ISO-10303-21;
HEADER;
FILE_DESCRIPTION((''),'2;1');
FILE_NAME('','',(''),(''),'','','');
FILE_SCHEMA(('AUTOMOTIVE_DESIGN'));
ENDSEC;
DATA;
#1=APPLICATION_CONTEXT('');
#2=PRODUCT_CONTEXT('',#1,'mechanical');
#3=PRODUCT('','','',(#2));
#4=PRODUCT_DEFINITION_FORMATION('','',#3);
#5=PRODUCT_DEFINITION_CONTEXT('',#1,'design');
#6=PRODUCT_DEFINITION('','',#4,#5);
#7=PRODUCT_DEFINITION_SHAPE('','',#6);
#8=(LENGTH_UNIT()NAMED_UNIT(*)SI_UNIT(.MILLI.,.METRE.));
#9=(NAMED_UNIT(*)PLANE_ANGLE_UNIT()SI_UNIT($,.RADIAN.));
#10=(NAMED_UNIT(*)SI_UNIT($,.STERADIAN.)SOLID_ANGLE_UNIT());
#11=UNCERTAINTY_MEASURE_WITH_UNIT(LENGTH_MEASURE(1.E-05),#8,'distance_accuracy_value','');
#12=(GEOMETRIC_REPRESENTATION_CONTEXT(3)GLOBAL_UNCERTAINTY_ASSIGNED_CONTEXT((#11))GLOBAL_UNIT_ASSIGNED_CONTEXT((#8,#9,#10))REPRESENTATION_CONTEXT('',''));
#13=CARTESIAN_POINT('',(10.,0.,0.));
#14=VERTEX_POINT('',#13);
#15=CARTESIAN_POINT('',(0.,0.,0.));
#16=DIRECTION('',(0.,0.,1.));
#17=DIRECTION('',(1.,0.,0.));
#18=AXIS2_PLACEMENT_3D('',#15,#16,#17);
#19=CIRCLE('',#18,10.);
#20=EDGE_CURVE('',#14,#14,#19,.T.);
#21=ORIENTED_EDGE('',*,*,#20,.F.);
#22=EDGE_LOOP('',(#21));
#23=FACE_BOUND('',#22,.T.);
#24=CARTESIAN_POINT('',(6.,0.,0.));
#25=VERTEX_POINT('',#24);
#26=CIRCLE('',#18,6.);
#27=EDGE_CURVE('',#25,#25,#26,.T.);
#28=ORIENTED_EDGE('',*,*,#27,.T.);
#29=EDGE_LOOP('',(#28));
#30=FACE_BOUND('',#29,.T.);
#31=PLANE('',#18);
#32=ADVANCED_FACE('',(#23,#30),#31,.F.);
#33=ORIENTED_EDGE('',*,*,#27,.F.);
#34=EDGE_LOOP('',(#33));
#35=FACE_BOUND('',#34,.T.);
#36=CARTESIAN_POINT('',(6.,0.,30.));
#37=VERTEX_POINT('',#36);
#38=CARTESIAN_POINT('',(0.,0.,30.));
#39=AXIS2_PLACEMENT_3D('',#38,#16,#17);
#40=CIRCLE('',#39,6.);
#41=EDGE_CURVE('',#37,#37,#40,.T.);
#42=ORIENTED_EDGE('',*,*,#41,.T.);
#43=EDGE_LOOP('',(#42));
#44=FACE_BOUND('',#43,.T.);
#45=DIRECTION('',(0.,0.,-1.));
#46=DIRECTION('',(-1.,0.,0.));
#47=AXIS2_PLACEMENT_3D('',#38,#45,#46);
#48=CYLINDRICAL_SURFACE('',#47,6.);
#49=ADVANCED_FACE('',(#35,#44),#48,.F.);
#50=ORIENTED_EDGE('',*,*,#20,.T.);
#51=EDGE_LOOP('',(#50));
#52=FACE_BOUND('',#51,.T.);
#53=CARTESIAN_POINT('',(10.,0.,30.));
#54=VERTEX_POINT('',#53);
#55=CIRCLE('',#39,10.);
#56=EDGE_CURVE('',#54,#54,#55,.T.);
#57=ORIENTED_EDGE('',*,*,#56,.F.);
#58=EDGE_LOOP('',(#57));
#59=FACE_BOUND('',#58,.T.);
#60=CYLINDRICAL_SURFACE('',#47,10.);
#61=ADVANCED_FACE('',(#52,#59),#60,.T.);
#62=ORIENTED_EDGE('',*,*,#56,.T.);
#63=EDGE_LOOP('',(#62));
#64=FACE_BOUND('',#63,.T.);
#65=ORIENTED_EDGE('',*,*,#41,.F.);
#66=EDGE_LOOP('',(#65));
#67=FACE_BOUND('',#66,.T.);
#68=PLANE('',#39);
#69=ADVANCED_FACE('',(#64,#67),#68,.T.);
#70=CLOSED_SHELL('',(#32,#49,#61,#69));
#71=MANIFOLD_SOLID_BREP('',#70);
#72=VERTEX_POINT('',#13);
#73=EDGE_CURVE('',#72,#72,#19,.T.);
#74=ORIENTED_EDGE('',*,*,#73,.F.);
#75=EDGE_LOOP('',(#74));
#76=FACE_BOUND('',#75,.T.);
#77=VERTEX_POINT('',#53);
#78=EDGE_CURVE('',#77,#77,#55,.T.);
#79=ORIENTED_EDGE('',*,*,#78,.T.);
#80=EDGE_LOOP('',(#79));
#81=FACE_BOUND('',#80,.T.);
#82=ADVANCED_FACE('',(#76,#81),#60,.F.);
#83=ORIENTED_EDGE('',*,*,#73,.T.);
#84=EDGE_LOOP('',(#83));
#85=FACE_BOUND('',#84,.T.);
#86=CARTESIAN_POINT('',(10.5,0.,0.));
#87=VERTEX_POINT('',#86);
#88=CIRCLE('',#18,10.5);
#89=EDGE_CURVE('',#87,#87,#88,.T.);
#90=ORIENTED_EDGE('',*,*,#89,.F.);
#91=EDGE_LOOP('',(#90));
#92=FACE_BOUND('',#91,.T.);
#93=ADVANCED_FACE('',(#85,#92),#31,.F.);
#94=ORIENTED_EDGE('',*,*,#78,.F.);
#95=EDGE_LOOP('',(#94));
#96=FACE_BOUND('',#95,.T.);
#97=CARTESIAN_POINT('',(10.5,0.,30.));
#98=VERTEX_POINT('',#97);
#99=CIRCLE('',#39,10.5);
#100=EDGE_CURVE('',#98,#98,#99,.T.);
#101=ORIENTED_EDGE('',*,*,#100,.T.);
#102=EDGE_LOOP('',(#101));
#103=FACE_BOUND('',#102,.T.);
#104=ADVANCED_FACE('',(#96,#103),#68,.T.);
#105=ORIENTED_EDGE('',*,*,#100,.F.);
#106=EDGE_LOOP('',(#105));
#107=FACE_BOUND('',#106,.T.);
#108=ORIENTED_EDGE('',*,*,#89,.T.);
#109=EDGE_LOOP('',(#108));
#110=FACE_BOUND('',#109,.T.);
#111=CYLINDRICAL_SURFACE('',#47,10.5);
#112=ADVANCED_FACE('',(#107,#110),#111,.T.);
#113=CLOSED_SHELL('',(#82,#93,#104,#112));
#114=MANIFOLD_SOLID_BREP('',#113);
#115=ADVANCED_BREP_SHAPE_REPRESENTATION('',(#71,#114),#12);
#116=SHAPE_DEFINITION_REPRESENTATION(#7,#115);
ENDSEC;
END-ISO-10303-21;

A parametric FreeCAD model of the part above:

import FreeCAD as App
import Part
import Sketcher

V = App.Vector
Q = App.Units.Quantity

doc = App.newDocument("Part")
body = doc.addObject("PartDesign::Body", "Body")

sketch1 = body.newObject("Sketcher::SketchObject", "Sketch")
sketch1.AttachmentSupport = (doc.getObject("XY_Plane"), [""])
sketch1.MapMode = "FlatFace"
sketch1.addGeometry(Part.Circle(V(0, 0, 0), V(0, 0, 1), 10), False)
sketch1.addGeometry(Part.Circle(V(0, 0, 0), V(0, 0, 1), 6), False)
sketch1.addConstraint(Sketcher.Constraint("Coincident", 0, 3, -1, 1))
sketch1.addConstraint(Sketcher.Constraint("Coincident", 1, 3, -1, 1))
sketch1.addConstraint(Sketcher.Constraint("Diameter", 0, Q("20 mm")))
sketch1.addConstraint(Sketcher.Constraint("Diameter", 1, Q("12 mm")))
pad1 = body.newObject("PartDesign::Pad", "Pad")
pad1.Profile = sketch1
pad1.Length = 30
body2 = doc.addObject("PartDesign::Body", "Body001")

sketch2 = body2.newObject("Sketcher::SketchObject", "Sketch001")
sketch2.AttachmentSupport = (doc.getObject("XY_Plane001"), [""])
sketch2.MapMode = "FlatFace"
sketch2.addGeometry(Part.Circle(V(0, 0, 0), V(0, 0, 1), 10.5), False)
sketch2.addGeometry(Part.Circle(V(0, 0, 0), V(0, 0, 1), 10), False)
sketch2.addConstraint(Sketcher.Constraint("Coincident", 0, 3, -1, 1))
sketch2.addConstraint(Sketcher.Constraint("Coincident", 1, 3, -1, 1))
sketch2.addConstraint(Sketcher.Constraint("Diameter", 0, Q("21 mm")))
sketch2.addConstraint(Sketcher.Constraint("Diameter", 1, Q("20 mm")))
pad2 = body2.newObject("PartDesign::Pad", "Pad001")
pad2.Profile = sketch2
pad2.Length = 30

doc.recompute()
